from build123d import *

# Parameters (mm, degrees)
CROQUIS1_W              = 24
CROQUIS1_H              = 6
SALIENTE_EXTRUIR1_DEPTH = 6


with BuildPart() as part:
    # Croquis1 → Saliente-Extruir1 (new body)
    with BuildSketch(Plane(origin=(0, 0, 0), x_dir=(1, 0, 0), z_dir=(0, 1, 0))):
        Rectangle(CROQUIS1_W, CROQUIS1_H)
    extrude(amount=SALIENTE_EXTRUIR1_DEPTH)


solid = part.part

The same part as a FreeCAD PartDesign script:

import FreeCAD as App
import Part
import Sketcher
from FreeCAD import Vector
Q = App.Units.Quantity


def add_polygon(sketch, points):
    """Adds a closed chain of lines whose ends are joined by coincident constraints."""
    first, n = sketch.GeometryCount, len(points)
    for a, b in zip(points, points[1:] + points[:1]):
        sketch.addGeometry(Part.LineSegment(App.Vector(*a, 0), App.Vector(*b, 0)), False)
    for i in range(n):
        sketch.addConstraint(Sketcher.Constraint("Coincident", first + i, 2, first + (i + 1) % n, 1))

doc = App.newDocument("Part")
body = doc.addObject("PartDesign::Body", "Body")

# Sketch on XZ plane
sketch1 = body.newObject("Sketcher::SketchObject", "Sketch")
sketch1.AttachmentSupport = (doc.getObject("XZ_Plane"), [""])
sketch1.MapMode = "FlatFace"
add_polygon(sketch1, [(-12, -3), (-12, 3), (12, 3), (12, -3)])  # lines 0-3
sketch1.addConstraint(Sketcher.Constraint("Vertical", 0))
sketch1.addConstraint(Sketcher.Constraint("Horizontal", 1))
sketch1.addConstraint(Sketcher.Constraint("Vertical", 2))
sketch1.addConstraint(Sketcher.Constraint("Horizontal", 3))
sketch1.addConstraint(Sketcher.Constraint("Symmetric", 0, 2, 2, 2, -1, 1))
sketch1.addConstraint(Sketcher.Constraint("DistanceX", 1, 1, 1, 2, Q("24 mm")))
sketch1.addConstraint(Sketcher.Constraint("DistanceY", 0, 1, 0, 2, Q("6 mm")))
pad1 = body.newObject("PartDesign::Pad", "Pad")
pad1.Profile = sketch1
pad1.Length = 6
pad1.Reversed = True

doc.recompute()
